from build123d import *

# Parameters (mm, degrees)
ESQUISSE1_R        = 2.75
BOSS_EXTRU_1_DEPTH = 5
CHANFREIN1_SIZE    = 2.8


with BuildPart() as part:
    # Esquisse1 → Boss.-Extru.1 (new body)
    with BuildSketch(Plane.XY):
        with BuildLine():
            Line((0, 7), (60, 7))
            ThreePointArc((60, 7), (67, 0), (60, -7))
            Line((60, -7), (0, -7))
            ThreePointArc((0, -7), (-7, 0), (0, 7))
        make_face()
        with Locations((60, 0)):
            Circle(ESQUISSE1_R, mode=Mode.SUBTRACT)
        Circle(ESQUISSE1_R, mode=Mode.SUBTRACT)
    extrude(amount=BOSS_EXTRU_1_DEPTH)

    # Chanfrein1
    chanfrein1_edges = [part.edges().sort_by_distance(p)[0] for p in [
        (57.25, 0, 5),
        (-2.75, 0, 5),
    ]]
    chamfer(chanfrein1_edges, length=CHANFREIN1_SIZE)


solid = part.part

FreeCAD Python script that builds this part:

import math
import FreeCAD as App
import Part
import Sketcher

V = App.Vector
Q = App.Units.Quantity


def edges_at(feature, points):
    """Names of the edges that pass closest to the given points."""
    edges = feature.Shape.Edges
    near = lambda p: min(range(len(edges)), key=lambda i: edges[i].distToShape(Part.Vertex(*p))[0])
    return sorted({f"Edge{near(p) + 1}" for p in points})

doc = App.newDocument("Part")
body = doc.addObject("PartDesign::Body", "Body")

# Sketch on XY plane
sketch1 = body.newObject("Sketcher::SketchObject", "Sketch")
sketch1.AttachmentSupport = (doc.getObject("XY_Plane"), [""])
sketch1.MapMode = "FlatFace"
sketch1.addGeometry([
    Part.LineSegment(V(60, 7, 0), V(0, 7, 0)),  # 0
    Part.ArcOfCircle(Part.Circle(V(0, 0, 0), V(0, 0, 1), 7), math.radians(90), math.radians(270)),  # 1
    Part.LineSegment(V(0, -7, 0), V(60, -7, 0)),  # 2
    Part.ArcOfCircle(Part.Circle(V(60, 0, 0), V(0, 0, 1), 7), math.radians(-90), math.radians(90)),  # 3
    Part.Circle(V(60, 0, 0), V(0, 0, 1), 2.8),  # 4
    Part.Circle(V(0, 0, 0), V(0, 0, 1), 2.8),  # 5
], False)
sketch1.addConstraint([
    Sketcher.Constraint("Tangent", 0, 2, 1, 1),
    Sketcher.Constraint("Tangent", 1, 2, 2, 1),
    Sketcher.Constraint("Tangent", 2, 2, 3, 1),
    Sketcher.Constraint("Tangent", 3, 2, 0, 1),
    Sketcher.Constraint("Horizontal", 0),
    Sketcher.Constraint("Horizontal", 2),
    Sketcher.Constraint("Coincident", 1, 3, -1, 1),
    Sketcher.Constraint("Coincident", 5, 3, -1, 1),
    Sketcher.Constraint("Coincident", 4, 3, 3, 3),
    Sketcher.Constraint("Equal", 4, 5),
    Sketcher.Constraint("Radius", 1, Q("7 mm")),
    Sketcher.Constraint("Diameter", 4, Q("5.5 mm")),
    Sketcher.Constraint("DistanceX", 0, 2, 0, 1, Q("60 mm")),
])
pad1 = body.newObject("PartDesign::Pad", "Pad")
pad1.Profile = sketch1
pad1.Length = 5
doc.recompute()

chamfer = body.newObject("PartDesign::Chamfer", "Chamfer")
chamfer.Base = (pad1, edges_at(pad1, [(57.25, 0, 5), (-2.75, 0, 5)]))
chamfer.Size = 2.8

doc.recompute()
